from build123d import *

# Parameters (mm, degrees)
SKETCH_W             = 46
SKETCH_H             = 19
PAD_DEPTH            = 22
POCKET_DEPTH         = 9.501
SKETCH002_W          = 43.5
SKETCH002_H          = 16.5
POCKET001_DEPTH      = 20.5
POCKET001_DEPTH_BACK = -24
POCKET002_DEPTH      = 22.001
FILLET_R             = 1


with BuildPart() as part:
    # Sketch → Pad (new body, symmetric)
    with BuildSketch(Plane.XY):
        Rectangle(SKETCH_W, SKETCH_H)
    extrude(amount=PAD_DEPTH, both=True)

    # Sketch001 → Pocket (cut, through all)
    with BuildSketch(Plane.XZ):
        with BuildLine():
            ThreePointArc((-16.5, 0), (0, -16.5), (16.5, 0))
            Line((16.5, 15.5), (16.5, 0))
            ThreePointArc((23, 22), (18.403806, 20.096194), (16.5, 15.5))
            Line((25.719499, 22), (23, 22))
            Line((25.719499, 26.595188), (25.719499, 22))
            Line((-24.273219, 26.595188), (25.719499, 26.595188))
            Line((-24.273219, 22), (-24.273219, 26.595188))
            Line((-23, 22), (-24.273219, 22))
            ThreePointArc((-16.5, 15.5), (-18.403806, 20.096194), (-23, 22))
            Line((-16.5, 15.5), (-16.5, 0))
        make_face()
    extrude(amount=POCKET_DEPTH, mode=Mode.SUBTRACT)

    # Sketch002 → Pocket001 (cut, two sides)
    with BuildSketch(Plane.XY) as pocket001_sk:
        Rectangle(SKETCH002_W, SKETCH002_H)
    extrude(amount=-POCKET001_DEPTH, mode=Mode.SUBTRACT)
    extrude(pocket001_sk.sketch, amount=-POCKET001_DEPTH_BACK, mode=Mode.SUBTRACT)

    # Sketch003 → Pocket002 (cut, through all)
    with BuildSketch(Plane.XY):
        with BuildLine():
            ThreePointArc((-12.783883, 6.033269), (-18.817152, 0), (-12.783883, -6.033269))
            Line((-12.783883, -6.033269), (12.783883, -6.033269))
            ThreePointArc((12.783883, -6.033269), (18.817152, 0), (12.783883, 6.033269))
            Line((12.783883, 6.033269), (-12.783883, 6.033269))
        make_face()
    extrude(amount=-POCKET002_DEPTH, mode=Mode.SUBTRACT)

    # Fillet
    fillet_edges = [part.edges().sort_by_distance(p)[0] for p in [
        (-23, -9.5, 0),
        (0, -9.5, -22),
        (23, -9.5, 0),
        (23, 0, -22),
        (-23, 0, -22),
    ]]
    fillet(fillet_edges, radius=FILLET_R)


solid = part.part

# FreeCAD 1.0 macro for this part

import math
import FreeCAD as App
import Part
import Sketcher
from FreeCAD import Vector
Q = App.Units.Quantity


def edges_at(feature, points):
    """Names of the edges that pass closest to the given points."""
    edges = feature.Shape.Edges
    near = lambda p: min(range(len(edges)), key=lambda i: edges[i].distToShape(Part.Vertex(*p))[0])
    return sorted({f"Edge{near(p) + 1}" for p in points})

doc = App.newDocument("Part")
params = doc.addObject("Spreadsheet::Sheet", "Params")
for row, (alias, value) in enumerate([
    ("sketch1_width", "46 mm"),
    ("sketch1_height", "19 mm"),
    ("pad1_length", "44 mm"),
    ("sketch2_radius", "16.5 mm"),
    ("sketch2_radius2", "6.5 mm"),
    ("sketch2_height", "15.5 mm"),
    ("sketch3_width", "43.5 mm"),
    ("sketch3_height", "16.5 mm"),
    ("pocket2_length", "20.5 mm"),
    ("pocket2_length2", "24 mm"),
    ("fillet_radius", "1 mm"),
], start=1):
    params.set(f"A{row}", alias)
    params.set(f"B{row}", "=" + value)
    params.setAlias(f"B{row}", alias)

body = doc.addObject("PartDesign::Body", "Body")

sketch1 = doc.addObject("Sketcher::SketchObject", "Sketch")
body.addObject(sketch1)
sketch1.AttachmentSupport = (doc.XY_Plane, [""])
sketch1.MapMode = "FlatFace"
sketch1.addGeometry([
    Part.LineSegment(Vector(-23, 10, 0), Vector(-23, -10, 0)),
    Part.LineSegment(Vector(-23, -10, 0), Vector(23, -10, 0)),
    Part.LineSegment(Vector(23, -10, 0), Vector(23, 10, 0)),
    Part.LineSegment(Vector(23, 10, 0), Vector(-23, 10, 0)),
], False)
sketch1.addConstraint([
    Sketcher.Constraint("Coincident", 0, 2, 1, 1),
    Sketcher.Constraint("Coincident", 1, 2, 2, 1),
    Sketcher.Constraint("Coincident", 2, 2, 3, 1),
    Sketcher.Constraint("Coincident", 3, 2, 0, 1),
    Sketcher.Constraint("Vertical", 0),
    Sketcher.Constraint("Horizontal", 1),
    Sketcher.Constraint("Vertical", 2),
    Sketcher.Constraint("Horizontal", 3),
    Sketcher.Constraint("Symmetric", 0, 2, 2, 2, -1, 1),
    Sketcher.Constraint("DistanceX", 1, 1, 1, 2, Q("46 mm")),
    Sketcher.Constraint("DistanceY", 0, 2, 0, 1, Q("19 mm")),
])
sketch1.setExpression("Constraints[9]", "Params.sketch1_width")
sketch1.setExpression("Constraints[10]", "Params.sketch1_height")
pad1 = doc.addObject("PartDesign::Pad", "Pad")
body.addObject(pad1)
pad1.Profile = sketch1
pad1.setExpression("Length", "Params.pad1_length")
pad1.Midplane = True

sketch2 = doc.addObject("Sketcher::SketchObject", "Sketch001")
body.addObject(sketch2)
sketch2.AttachmentSupport = (doc.XZ_Plane, [""])
sketch2.MapMode = "FlatFace"
sketch2.addGeometry([
    Part.ArcOfCircle(Part.Circle(Vector(0, 0, 0), Vector(0, 0, 1), 16.5), math.radians(180), math.radians(360)),
    Part.LineSegment(Vector(16.5, 0, 0), Vector(16.5, 15.5, 0)),
    Part.ArcOfCircle(Part.Circle(Vector(23, 15.5, 0), Vector(0, 0, 1), 6.5), math.radians(90), math.radians(180)),
    Part.LineSegment(Vector(23, 22, 0), Vector(25.7, 22, 0)),
    Part.LineSegment(Vector(25.7, 22, 0), Vector(25.7, 26.6, 0)),
    Part.LineSegment(Vector(25.7, 26.6, 0), Vector(-24.3, 26.6, 0)),
    Part.LineSegment(Vector(-24.3, 26.6, 0), Vector(-24.3, 22, 0)),
    Part.LineSegment(Vector(-24.3, 22, 0), Vector(-23, 22, 0)),
    Part.ArcOfCircle(Part.Circle(Vector(-23, 15.5, 0), Vector(0, 0, 1), 6.5), math.radians(0), math.radians(90)),
    Part.LineSegment(Vector(-16.5, 15.5, 0), Vector(-16.5, 0, 0)),
], False)
sketch2.addConstraint([
    Sketcher.Constraint("Tangent", 0, 2, 1, 1),
    Sketcher.Constraint("Tangent", 1, 2, 2, 2),
    Sketcher.Constraint("Tangent", 2, 1, 3, 1),
    Sketcher.Constraint("Coincident", 3, 2, 4, 1),
    Sketcher.Constraint("Coincident", 4, 2, 5, 1),
    Sketcher.Constraint("Coincident", 5, 2, 6, 1),
    Sketcher.Constraint("Coincident", 6, 2, 7, 1),
    Sketcher.Constraint("Tangent", 7, 2, 8, 2),
    Sketcher.Constraint("Tangent", 8, 1, 9, 1),
    Sketcher.Constraint("Tangent", 9, 2, 0, 1),
    Sketcher.Constraint("Vertical", 1),
    Sketcher.Constraint("Horizontal", 3),
    Sketcher.Constraint("Vertical", 4),
    Sketcher.Constraint("Horizontal", 5),
    Sketcher.Constraint("Vertical", 6),
    Sketcher.Constraint("Horizontal", 7),
    Sketcher.Constraint("Vertical", 9),
    Sketcher.Constraint("Coincident", 0, 3, -1, 1),
    Sketcher.Constraint("Equal", 2, 8),
    Sketcher.Constraint("Horizontal", 2, 3, 8, 3),
    Sketcher.Constraint("Radius", 0, Q("16.5 mm")),
    Sketcher.Constraint("Radius", 2, Q("6.5 mm")),
    Sketcher.Constraint("DistanceY", 1, 1, 1, 2, Q("15.5 mm")),
    Sketcher.Constraint("DistanceX", 3, 1, 3, 2, Q("2.719499 mm")),
    Sketcher.Constraint("DistanceX", 7, 1, 7, 2, Q("1.273219 mm")),
    Sketcher.Constraint("DistanceY", 4, 1, 4, 2, Q("4.595188 mm")),
])
sketch2.setExpression("Constraints[20]", "Params.sketch2_radius")
sketch2.setExpression("Constraints[21]", "Params.sketch2_radius2")
sketch2.setExpression("Constraints[22]", "Params.sketch2_height")
pocket1 = doc.addObject("PartDesign::Pocket", "Pocket")
body.addObject(pocket1)
pocket1.Profile = sketch2
pocket1.Type = "ThroughAll"
pocket1.Reversed = True

sketch3 = doc.addObject("Sketcher::SketchObject", "Sketch002")
body.addObject(sketch3)
sketch3.AttachmentSupport = (doc.XY_Plane, [""])
sketch3.MapMode = "FlatFace"
sketch3.addGeometry([
    Part.LineSegment(Vector(-22, 8, 0), Vector(-22, -8, 0)),
    Part.LineSegment(Vector(-22, -8, 0), Vector(22, -8, 0)),
    Part.LineSegment(Vector(22, -8, 0), Vector(22, 8, 0)),
    Part.LineSegment(Vector(22, 8, 0), Vector(-22, 8, 0)),
], False)
sketch3.addConstraint([
    Sketcher.Constraint("Coincident", 0, 2, 1, 1),
    Sketcher.Constraint("Coincident", 1, 2, 2, 1),
    Sketcher.Constraint("Coincident", 2, 2, 3, 1),
    Sketcher.Constraint("Coincident", 3, 2, 0, 1),
    Sketcher.Constraint("Vertical", 0),
    Sketcher.Constraint("Horizontal", 1),
    Sketcher.Constraint("Vertical", 2),
    Sketcher.Constraint("Horizontal", 3),
    Sketcher.Constraint("Symmetric", 0, 2, 2, 2, -1, 1),
    Sketcher.Constraint("DistanceX", 1, 1, 1, 2, Q("43.5 mm")),
    Sketcher.Constraint("DistanceY", 0, 2, 0, 1, Q("16.5 mm")),
])
sketch3.setExpression("Constraints[9]", "Params.sketch3_width")
sketch3.setExpression("Constraints[10]", "Params.sketch3_height")
pocket2 = doc.addObject("PartDesign::Pocket", "Pocket001")
body.addObject(pocket2)
pocket2.Profile = sketch3
pocket2.Type = "TwoLengths"
pocket2.setExpression("Length", "Params.pocket2_length")
pocket2.setExpression("Length2", "Params.pocket2_length2")

sketch4 = doc.addObject("Sketcher::SketchObject", "Sketch003")
body.addObject(sketch4)
sketch4.AttachmentSupport = (doc.XY_Plane, [""])
sketch4.MapMode = "FlatFace"
sketch4.addGeometry([
    Part.ArcOfCircle(Part.Circle(Vector(-13, 0, 0), Vector(0, 0, 1), 6), math.radians(90), math.radians(270)),
    Part.LineSegment(Vector(-13, -6, 0), Vector(13, -6, 0)),
    Part.ArcOfCircle(Part.Circle(Vector(13, 0, 0), Vector(0, 0, 1), 6), math.radians(-90), math.radians(90)),
    Part.LineSegment(Vector(13, 6, 0), Vector(-13, 6, 0)),
], False)
sketch4.addConstraint([
    Sketcher.Constraint("Tangent", 0, 2, 1, 1),
    Sketcher.Constraint("Tangent", 1, 2, 2, 1),
    Sketcher.Constraint("Tangent", 2, 2, 3, 1),
    Sketcher.Constraint("Tangent", 3, 2, 0, 1),
    Sketcher.Constraint("Horizontal", 1),
    Sketcher.Constraint("Horizontal", 3),
    Sketcher.Constraint("Symmetric", 0, 3, 2, 3, -1, 1),
    Sketcher.Constraint("Radius", 0, Q("6.033269 mm")),
    Sketcher.Constraint("DistanceX", 1, 1, 1, 2, Q("25.567766 mm")),
])
pocket3 = doc.addObject("PartDesign::Pocket", "Pocket002")
body.addObject(pocket3)
pocket3.Profile = sketch4
pocket3.Type = "ThroughAll"
doc.recompute()

fillet = doc.addObject("PartDesign::Fillet", "Fillet")
body.addObject(fillet)
fillet.Base = (pocket3, edges_at(pocket3, [
    (-23, -9.5, 0),
    (0, -9.5, -22),
    (23, -9.5, 0),
    (23, 0, -22),
    (-23, 0, -22),
]))
fillet.setExpression("Radius", "Params.fillet_radius")

doc.recompute()
